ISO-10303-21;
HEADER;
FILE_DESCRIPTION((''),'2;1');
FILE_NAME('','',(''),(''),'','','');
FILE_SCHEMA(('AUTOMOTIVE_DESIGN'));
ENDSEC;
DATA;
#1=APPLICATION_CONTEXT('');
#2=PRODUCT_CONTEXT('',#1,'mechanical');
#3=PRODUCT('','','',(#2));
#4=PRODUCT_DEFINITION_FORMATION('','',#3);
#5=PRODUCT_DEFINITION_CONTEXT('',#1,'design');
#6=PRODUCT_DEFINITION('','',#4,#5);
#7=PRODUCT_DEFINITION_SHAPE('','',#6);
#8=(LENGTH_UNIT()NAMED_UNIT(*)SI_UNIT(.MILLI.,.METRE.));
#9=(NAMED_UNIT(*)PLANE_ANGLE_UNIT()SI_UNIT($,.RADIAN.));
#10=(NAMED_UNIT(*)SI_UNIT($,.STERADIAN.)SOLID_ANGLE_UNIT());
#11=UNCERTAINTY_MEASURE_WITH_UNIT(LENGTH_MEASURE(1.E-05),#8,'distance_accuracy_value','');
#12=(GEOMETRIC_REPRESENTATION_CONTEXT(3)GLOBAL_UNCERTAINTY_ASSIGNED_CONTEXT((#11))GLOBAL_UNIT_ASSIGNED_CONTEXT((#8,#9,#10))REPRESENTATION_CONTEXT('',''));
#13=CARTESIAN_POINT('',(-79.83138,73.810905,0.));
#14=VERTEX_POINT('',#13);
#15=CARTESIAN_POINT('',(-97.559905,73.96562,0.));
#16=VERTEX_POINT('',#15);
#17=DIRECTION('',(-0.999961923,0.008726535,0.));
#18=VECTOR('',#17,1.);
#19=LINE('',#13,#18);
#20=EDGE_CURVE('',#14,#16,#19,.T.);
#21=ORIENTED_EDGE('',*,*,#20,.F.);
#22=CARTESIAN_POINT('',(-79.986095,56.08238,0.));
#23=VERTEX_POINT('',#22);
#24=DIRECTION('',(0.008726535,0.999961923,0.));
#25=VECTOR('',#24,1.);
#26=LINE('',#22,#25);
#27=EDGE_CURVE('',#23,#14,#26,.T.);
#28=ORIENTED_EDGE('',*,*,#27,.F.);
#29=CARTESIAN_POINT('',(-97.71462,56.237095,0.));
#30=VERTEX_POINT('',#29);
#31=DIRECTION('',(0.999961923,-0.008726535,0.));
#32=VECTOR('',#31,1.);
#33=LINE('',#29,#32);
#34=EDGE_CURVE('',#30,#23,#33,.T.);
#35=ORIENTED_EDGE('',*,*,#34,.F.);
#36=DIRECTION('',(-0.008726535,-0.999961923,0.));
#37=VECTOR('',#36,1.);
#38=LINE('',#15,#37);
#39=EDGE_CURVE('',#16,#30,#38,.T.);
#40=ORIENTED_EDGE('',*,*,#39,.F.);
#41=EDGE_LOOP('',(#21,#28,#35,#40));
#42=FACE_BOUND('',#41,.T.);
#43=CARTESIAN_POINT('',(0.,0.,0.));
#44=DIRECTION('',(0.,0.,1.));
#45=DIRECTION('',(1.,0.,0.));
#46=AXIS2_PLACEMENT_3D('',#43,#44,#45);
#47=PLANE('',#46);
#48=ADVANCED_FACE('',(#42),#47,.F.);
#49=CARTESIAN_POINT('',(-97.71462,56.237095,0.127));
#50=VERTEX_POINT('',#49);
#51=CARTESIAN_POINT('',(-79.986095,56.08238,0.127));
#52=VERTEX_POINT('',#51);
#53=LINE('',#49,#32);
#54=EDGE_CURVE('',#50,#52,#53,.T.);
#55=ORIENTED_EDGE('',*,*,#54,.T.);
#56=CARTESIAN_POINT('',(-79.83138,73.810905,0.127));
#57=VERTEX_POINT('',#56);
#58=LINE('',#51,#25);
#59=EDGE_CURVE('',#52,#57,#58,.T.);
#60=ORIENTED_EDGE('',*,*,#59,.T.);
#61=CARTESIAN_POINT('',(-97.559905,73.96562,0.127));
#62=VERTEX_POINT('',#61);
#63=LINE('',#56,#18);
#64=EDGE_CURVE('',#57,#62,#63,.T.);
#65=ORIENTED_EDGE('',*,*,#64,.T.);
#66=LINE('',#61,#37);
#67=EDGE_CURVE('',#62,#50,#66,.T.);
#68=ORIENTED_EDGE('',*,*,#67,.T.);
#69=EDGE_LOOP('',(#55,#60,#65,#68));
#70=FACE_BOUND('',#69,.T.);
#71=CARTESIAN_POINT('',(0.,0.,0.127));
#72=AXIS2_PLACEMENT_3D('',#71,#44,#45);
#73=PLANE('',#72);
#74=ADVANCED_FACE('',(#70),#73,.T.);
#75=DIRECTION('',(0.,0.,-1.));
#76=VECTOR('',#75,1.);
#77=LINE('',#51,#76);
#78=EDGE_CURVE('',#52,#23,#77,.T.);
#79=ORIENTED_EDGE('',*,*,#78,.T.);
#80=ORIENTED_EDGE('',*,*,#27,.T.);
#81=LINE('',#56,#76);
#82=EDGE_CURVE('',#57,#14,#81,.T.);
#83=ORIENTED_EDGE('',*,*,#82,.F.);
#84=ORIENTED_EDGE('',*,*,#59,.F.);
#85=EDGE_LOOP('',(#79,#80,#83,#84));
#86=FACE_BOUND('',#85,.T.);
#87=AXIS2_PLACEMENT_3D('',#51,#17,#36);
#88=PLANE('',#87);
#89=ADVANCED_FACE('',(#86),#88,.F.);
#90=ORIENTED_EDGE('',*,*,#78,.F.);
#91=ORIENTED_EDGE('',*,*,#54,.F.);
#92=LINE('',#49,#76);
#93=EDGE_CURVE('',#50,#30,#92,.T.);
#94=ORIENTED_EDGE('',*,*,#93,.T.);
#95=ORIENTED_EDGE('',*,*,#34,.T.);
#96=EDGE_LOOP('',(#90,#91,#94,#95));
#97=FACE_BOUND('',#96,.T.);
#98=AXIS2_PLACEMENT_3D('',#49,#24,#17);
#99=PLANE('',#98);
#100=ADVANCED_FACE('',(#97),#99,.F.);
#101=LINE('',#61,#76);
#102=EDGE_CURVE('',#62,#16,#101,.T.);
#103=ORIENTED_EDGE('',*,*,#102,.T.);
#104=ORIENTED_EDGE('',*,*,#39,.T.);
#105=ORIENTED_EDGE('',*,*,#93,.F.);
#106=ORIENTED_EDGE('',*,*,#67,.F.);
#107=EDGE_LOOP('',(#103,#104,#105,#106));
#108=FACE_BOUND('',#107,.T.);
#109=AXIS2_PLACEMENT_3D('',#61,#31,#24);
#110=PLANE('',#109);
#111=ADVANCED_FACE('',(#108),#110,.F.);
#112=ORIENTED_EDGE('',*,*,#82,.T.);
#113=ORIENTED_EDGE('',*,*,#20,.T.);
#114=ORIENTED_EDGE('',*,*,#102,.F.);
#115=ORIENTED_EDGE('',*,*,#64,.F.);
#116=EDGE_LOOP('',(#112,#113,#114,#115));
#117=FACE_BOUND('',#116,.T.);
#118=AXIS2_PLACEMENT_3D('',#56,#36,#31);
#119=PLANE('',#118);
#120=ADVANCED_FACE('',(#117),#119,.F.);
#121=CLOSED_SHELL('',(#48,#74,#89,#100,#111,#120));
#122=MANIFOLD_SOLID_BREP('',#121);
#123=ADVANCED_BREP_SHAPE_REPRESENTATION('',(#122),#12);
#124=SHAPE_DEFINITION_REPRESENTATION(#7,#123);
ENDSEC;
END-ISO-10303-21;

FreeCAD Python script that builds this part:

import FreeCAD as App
import Part
import Sketcher
from FreeCAD import Vector
Q = App.Units.Quantity


def add_polygon(sketch, points):
    """Adds a closed chain of lines whose ends are joined by coincident constraints."""
    first, n = sketch.GeometryCount, len(points)
    for a, b in zip(points, points[1:] + points[:1]):
        sketch.addGeometry(Part.LineSegment(App.Vector(*a, 0), App.Vector(*b, 0)), False)
    for i in range(n):
        sketch.addConstraint(Sketcher.Constraint("Coincident", first + i, 2, first + (i + 1) % n, 1))

doc = App.newDocument("Part")
body = doc.addObject("PartDesign::Body", "Body")

# Sketch on XY plane
sketch1 = body.newObject("Sketcher::SketchObject", "Sketch")
sketch1.AttachmentSupport = (doc.getObject("XY_Plane"), [""])
sketch1.MapMode = "FlatFace"
add_polygon(sketch1, [(-98, 74), (-98, 56), (-80, 56), (-80, 74)])  # lines 0-3
sketch1.addConstraint([
    Sketcher.Constraint("Perpendicular", 0, 1),
    Sketcher.Constraint("Perpendicular", 1, 2),
    Sketcher.Constraint("Perpendicular", 2, 3),
    Sketcher.Constraint("Equal", 0, 1),
    Sketcher.Constraint("Angle", 0, Q("-90.5 deg")),
    Sketcher.Constraint("Distance", 0, Q("0.698 in")),
    Sketcher.Constraint("DistanceX", 0, 2, -1, 1, 97.71462),
    Sketcher.Constraint("DistanceY", -1, 1, 1, 2, 56.08238),
])
pad1 = body.newObject("PartDesign::Pad", "Pad")
pad1.Profile = sketch1
pad1.Length = Q("0.005 in")

doc.recompute()
